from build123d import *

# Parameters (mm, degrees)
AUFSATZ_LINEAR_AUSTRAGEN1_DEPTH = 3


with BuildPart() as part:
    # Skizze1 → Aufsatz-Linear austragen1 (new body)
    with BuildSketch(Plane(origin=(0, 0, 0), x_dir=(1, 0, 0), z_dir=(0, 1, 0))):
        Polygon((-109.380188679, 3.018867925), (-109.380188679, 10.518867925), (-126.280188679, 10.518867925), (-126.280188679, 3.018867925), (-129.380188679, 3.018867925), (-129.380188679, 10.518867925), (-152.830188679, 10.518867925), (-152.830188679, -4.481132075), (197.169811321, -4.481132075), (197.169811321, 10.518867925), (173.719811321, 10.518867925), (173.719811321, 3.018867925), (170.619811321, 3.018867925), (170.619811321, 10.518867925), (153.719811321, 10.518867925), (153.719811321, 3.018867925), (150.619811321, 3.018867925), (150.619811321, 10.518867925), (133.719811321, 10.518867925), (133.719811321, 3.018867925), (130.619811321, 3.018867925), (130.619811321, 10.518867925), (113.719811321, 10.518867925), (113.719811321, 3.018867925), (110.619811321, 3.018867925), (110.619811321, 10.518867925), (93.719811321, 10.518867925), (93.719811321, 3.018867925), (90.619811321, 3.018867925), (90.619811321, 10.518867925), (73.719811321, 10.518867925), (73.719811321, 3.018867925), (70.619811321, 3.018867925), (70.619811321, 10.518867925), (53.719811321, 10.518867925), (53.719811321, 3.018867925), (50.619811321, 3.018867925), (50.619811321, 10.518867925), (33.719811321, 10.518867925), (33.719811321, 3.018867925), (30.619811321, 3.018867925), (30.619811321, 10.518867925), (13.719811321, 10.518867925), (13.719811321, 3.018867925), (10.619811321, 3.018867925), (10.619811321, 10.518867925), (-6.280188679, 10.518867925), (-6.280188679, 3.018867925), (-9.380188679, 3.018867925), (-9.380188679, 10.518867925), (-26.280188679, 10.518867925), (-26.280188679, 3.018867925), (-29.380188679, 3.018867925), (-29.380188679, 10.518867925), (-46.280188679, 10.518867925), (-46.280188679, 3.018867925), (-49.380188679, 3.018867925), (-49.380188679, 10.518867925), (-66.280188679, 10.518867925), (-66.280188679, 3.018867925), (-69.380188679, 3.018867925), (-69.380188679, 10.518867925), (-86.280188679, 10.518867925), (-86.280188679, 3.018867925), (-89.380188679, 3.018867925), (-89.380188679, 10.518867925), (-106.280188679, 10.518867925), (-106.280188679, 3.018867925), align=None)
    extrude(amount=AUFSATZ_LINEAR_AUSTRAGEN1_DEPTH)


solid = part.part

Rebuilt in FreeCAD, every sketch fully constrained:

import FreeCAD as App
import Part
import Sketcher

doc = App.newDocument("Part")
body = doc.addObject("PartDesign::Body", "Body")

sketch1 = doc.addObject("Sketcher::SketchObject", "Sketch")
body.addObject(sketch1)
sketch1.AttachmentSupport = (doc.XZ_Plane, [""])
sketch1.MapMode = "FlatFace"
sketch1.addGeometry([
    Part.LineSegment(App.Vector(-109.380189, -3.018868, 0), App.Vector(-109.380189, -10.518868, 0)),
    Part.LineSegment(App.Vector(-109.380189, -10.518868, 0), App.Vector(-126.280189, -10.518868, 0)),
    Part.LineSegment(App.Vector(-126.280189, -10.518868, 0), App.Vector(-126.280189, -3.018868, 0)),
    Part.LineSegment(App.Vector(-126.280189, -3.018868, 0), App.Vector(-129.380189, -3.018868, 0)),
    Part.LineSegment(App.Vector(-129.380189, -3.018868, 0), App.Vector(-129.380189, -10.518868, 0)),
    Part.LineSegment(App.Vector(-129.380189, -10.518868, 0), App.Vector(-152.830189, -10.518868, 0)),
    Part.LineSegment(App.Vector(-152.830189, -10.518868, 0), App.Vector(-152.830189, 4.481132, 0)),
    Part.LineSegment(App.Vector(-152.830189, 4.481132, 0), App.Vector(197.169811, 4.481132, 0)),
    Part.LineSegment(App.Vector(197.169811, 4.481132, 0), App.Vector(197.169811, -10.518868, 0)),
    Part.LineSegment(App.Vector(197.169811, -10.518868, 0), App.Vector(173.719811, -10.518868, 0)),
    Part.LineSegment(App.Vector(173.719811, -10.518868, 0), App.Vector(173.719811, -3.018868, 0)),
    Part.LineSegment(App.Vector(173.719811, -3.018868, 0), App.Vector(170.619811, -3.018868, 0)),
    Part.LineSegment(App.Vector(170.619811, -3.018868, 0), App.Vector(170.619811, -10.518868, 0)),
    Part.LineSegment(App.Vector(170.619811, -10.518868, 0), App.Vector(153.719811, -10.518868, 0)),
    Part.LineSegment(App.Vector(153.719811, -10.518868, 0), App.Vector(153.719811, -3.018868, 0)),
    Part.LineSegment(App.Vector(153.719811, -3.018868, 0), App.Vector(150.619811, -3.018868, 0)),
    Part.LineSegment(App.Vector(150.619811, -3.018868, 0), App.Vector(150.619811, -10.518868, 0)),
    Part.LineSegment(App.Vector(150.619811, -10.518868, 0), App.Vector(133.719811, -10.518868, 0)),
    Part.LineSegment(App.Vector(133.719811, -10.518868, 0), App.Vector(133.719811, -3.018868, 0)),
    Part.LineSegment(App.Vector(133.719811, -3.018868, 0), App.Vector(130.619811, -3.018868, 0)),
    Part.LineSegment(App.Vector(130.619811, -3.018868, 0), App.Vector(130.619811, -10.518868, 0)),
    Part.LineSegment(App.Vector(130.619811, -10.518868, 0), App.Vector(113.719811, -10.518868, 0)),
    Part.LineSegment(App.Vector(113.719811, -10.518868, 0), App.Vector(113.719811, -3.018868, 0)),
    Part.LineSegment(App.Vector(113.719811, -3.018868, 0), App.Vector(110.619811, -3.018868, 0)),
    Part.LineSegment(App.Vector(110.619811, -3.018868, 0), App.Vector(110.619811, -10.518868, 0)),
    Part.LineSegment(App.Vector(110.619811, -10.518868, 0), App.Vector(93.719811, -10.518868, 0)),
    Part.LineSegment(App.Vector(93.719811, -10.518868, 0), App.Vector(93.719811, -3.018868, 0)),
    Part.LineSegment(App.Vector(93.719811, -3.018868, 0), App.Vector(90.619811, -3.018868, 0)),
    Part.LineSegment(App.Vector(90.619811, -3.018868, 0), App.Vector(90.619811, -10.518868, 0)),
    Part.LineSegment(App.Vector(90.619811, -10.518868, 0), App.Vector(73.719811, -10.518868, 0)),
    Part.LineSegment(App.Vector(73.719811, -10.518868, 0), App.Vector(73.719811, -3.018868, 0)),
    Part.LineSegment(App.Vector(73.719811, -3.018868, 0), App.Vector(70.619811, -3.018868, 0)),
    Part.LineSegment(App.Vector(70.619811, -3.018868, 0), App.Vector(70.619811, -10.518868, 0)),
    Part.LineSegment(App.Vector(70.619811, -10.518868, 0), App.Vector(53.719811, -10.518868, 0)),
    Part.LineSegment(App.Vector(53.719811, -10.518868, 0), App.Vector(53.719811, -3.018868, 0)),
    Part.LineSegment(App.Vector(53.719811, -3.018868, 0), App.Vector(50.619811, -3.018868, 0)),
    Part.LineSegment(App.Vector(50.619811, -3.018868, 0), App.Vector(50.619811, -10.518868, 0)),
    Part.LineSegment(App.Vector(50.619811, -10.518868, 0), App.Vector(33.719811, -10.518868, 0)),
    Part.LineSegment(App.Vector(33.719811, -10.518868, 0), App.Vector(33.719811, -3.018868, 0)),
    Part.LineSegment(App.Vector(33.719811, -3.018868, 0), App.Vector(30.619811, -3.018868, 0)),
    Part.LineSegment(App.Vector(30.619811, -3.018868, 0), App.Vector(30.619811, -10.518868, 0)),
    Part.LineSegment(App.Vector(30.619811, -10.518868, 0), App.Vector(13.719811, -10.518868, 0)),
    Part.LineSegment(App.Vector(13.719811, -10.518868, 0), App.Vector(13.719811, -3.018868, 0)),
    Part.LineSegment(App.Vector(13.719811, -3.018868, 0), App.Vector(10.619811, -3.018868, 0)),
    Part.LineSegment(App.Vector(10.619811, -3.018868, 0), App.Vector(10.619811, -10.518868, 0)),
    Part.LineSegment(App.Vector(10.619811, -10.518868, 0), App.Vector(-6.280189, -10.518868, 0)),
    Part.LineSegment(App.Vector(-6.280189, -10.518868, 0), App.Vector(-6.280189, -3.018868, 0)),
    Part.LineSegment(App.Vector(-6.280189, -3.018868, 0), App.Vector(-9.380189, -3.018868, 0)),
    Part.LineSegment(App.Vector(-9.380189, -3.018868, 0), App.Vector(-9.380189, -10.518868, 0)),
    Part.LineSegment(App.Vector(-9.380189, -10.518868, 0), App.Vector(-26.280189, -10.518868, 0)),
    Part.LineSegment(App.Vector(-26.280189, -10.518868, 0), App.Vector(-26.280189, -3.018868, 0)),
    Part.LineSegment(App.Vector(-26.280189, -3.018868, 0), App.Vector(-29.380189, -3.018868, 0)),
    Part.LineSegment(App.Vector(-29.380189, -3.018868, 0), App.Vector(-29.380189, -10.518868, 0)),
    Part.LineSegment(App.Vector(-29.380189, -10.518868, 0), App.Vector(-46.280189, -10.518868, 0)),
    Part.LineSegment(App.Vector(-46.280189, -10.518868, 0), App.Vector(-46.280189, -3.018868, 0)),
    Part.LineSegment(App.Vector(-46.280189, -3.018868, 0), App.Vector(-49.380189, -3.018868, 0)),
    Part.LineSegment(App.Vector(-49.380189, -3.018868, 0), App.Vector(-49.380189, -10.518868, 0)),
    Part.LineSegment(App.Vector(-49.380189, -10.518868, 0), App.Vector(-66.280189, -10.518868, 0)),
    Part.LineSegment(App.Vector(-66.280189, -10.518868, 0), App.Vector(-66.280189, -3.018868, 0)),
    Part.LineSegment(App.Vector(-66.280189, -3.018868, 0), App.Vector(-69.380189, -3.018868, 0)),
    Part.LineSegment(App.Vector(-69.380189, -3.018868, 0), App.Vector(-69.380189, -10.518868, 0)),
    Part.LineSegment(App.Vector(-69.380189, -10.518868, 0), App.Vector(-86.280189, -10.518868, 0)),
    Part.LineSegment(App.Vector(-86.280189, -10.518868, 0), App.Vector(-86.280189, -3.018868, 0)),
    Part.LineSegment(App.Vector(-86.280189, -3.018868, 0), App.Vector(-89.380189, -3.018868, 0)),
    Part.LineSegment(App.Vector(-89.380189, -3.018868, 0), App.Vector(-89.380189, -10.518868, 0)),
    Part.LineSegment(App.Vector(-89.380189, -10.518868, 0), App.Vector(-106.280189, -10.518868, 0)),
    Part.LineSegment(App.Vector(-106.280189, -10.518868, 0), App.Vector(-106.280189, -3.018868, 0)),
    Part.LineSegment(App.Vector(-106.280189, -3.018868, 0), App.Vector(-109.380189, -3.018868, 0)),
], False)
sketch1.addConstraint([
    Sketcher.Constraint("Coincident", 0, 2, 1, 1),
    Sketcher.Constraint("Coincident", 1, 2, 2, 1),
    Sketcher.Constraint("Coincident", 2, 2, 3, 1),
    Sketcher.Constraint("Coincident", 3, 2, 4, 1),
    Sketcher.Constraint("Coincident", 4, 2, 5, 1),
    Sketcher.Constraint("Coincident", 5, 2, 6, 1),
    Sketcher.Constraint("Coincident", 6, 2, 7, 1),
    Sketcher.Constraint("Coincident", 7, 2, 8, 1),
    Sketcher.Constraint("Coincident", 8, 2, 9, 1),
    Sketcher.Constraint("Coincident", 9, 2, 10, 1),
    Sketcher.Constraint("Coincident", 10, 2, 11, 1),
    Sketcher.Constraint("Coincident", 11, 2, 12, 1),
    Sketcher.Constraint("Coincident", 12, 2, 13, 1),
    Sketcher.Constraint("Coincident", 13, 2, 14, 1),
    Sketcher.Constraint("Coincident", 14, 2, 15, 1),
    Sketcher.Constraint("Coincident", 15, 2, 16, 1),
    Sketcher.Constraint("Coincident", 16, 2, 17, 1),
    Sketcher.Constraint("Coincident", 17, 2, 18, 1),
    Sketcher.Constraint("Coincident", 18, 2, 19, 1),
    Sketcher.Constraint("Coincident", 19, 2, 20, 1),
    Sketcher.Constraint("Coincident", 20, 2, 21, 1),
    Sketcher.Constraint("Coincident", 21, 2, 22, 1),
    Sketcher.Constraint("Coincident", 22, 2, 23, 1),
    Sketcher.Constraint("Coincident", 23, 2, 24, 1),
    Sketcher.Constraint("Coincident", 24, 2, 25, 1),
    Sketcher.Constraint("Coincident", 25, 2, 26, 1),
    Sketcher.Constraint("Coincident", 26, 2, 27, 1),
    Sketcher.Constraint("Coincident", 27, 2, 28, 1),
    Sketcher.Constraint("Coincident", 28, 2, 29, 1),
    Sketcher.Constraint("Coincident", 29, 2, 30, 1),
    Sketcher.Constraint("Coincident", 30, 2, 31, 1),
    Sketcher.Constraint("Coincident", 31, 2, 32, 1),
    Sketcher.Constraint("Coincident", 32, 2, 33, 1),
    Sketcher.Constraint("Coincident", 33, 2, 34, 1),
    Sketcher.Constraint("Coincident", 34, 2, 35, 1),
    Sketcher.Constraint("Coincident", 35, 2, 36, 1),
    Sketcher.Constraint("Coincident", 36, 2, 37, 1),
    Sketcher.Constraint("Coincident", 37, 2, 38, 1),
    Sketcher.Constraint("Coincident", 38, 2, 39, 1),
    Sketcher.Constraint("Coincident", 39, 2, 40, 1),
    Sketcher.Constraint("Coincident", 40, 2, 41, 1),
    Sketcher.Constraint("Coincident", 41, 2, 42, 1),
    Sketcher.Constraint("Coincident", 42, 2, 43, 1),
    Sketcher.Constraint("Coincident", 43, 2, 44, 1),
    Sketcher.Constraint("Coincident", 44, 2, 45, 1),
    Sketcher.Constraint("Coincident", 45, 2, 46, 1),
    Sketcher.Constraint("Coincident", 46, 2, 47, 1),
    Sketcher.Constraint("Coincident", 47, 2, 48, 1),
    Sketcher.Constraint("Coincident", 48, 2, 49, 1),
    Sketcher.Constraint("Coincident", 49, 2, 50, 1),
    Sketcher.Constraint("Coincident", 50, 2, 51, 1),
    Sketcher.Constraint("Coincident", 51, 2, 52, 1),
    Sketcher.Constraint("Coincident", 52, 2, 53, 1),
    Sketcher.Constraint("Coincident", 53, 2, 54, 1),
    Sketcher.Constraint("Coincident", 54, 2, 55, 1),
    Sketcher.Constraint("Coincident", 55, 2, 56, 1),
    Sketcher.Constraint("Coincident", 56, 2, 57, 1),
    Sketcher.Constraint("Coincident", 57, 2, 58, 1),
    Sketcher.Constraint("Coincident", 58, 2, 59, 1),
    Sketcher.Constraint("Coincident", 59, 2, 60, 1),
    Sketcher.Constraint("Coincident", 60, 2, 61, 1),
    Sketcher.Constraint("Coincident", 61, 2, 62, 1),
    Sketcher.Constraint("Coincident", 62, 2, 63, 1),
    Sketcher.Constraint("Coincident", 63, 2, 64, 1),
    Sketcher.Constraint("Coincident", 64, 2, 65, 1),
    Sketcher.Constraint("Coincident", 65, 2, 66, 1),
    Sketcher.Constraint("Coincident", 66, 2, 67, 1),
    Sketcher.Constraint("Coincident", 67, 2, 0, 1),
    Sketcher.Constraint("Vertical", 0),
    Sketcher.Constraint("Horizontal", 1),
    Sketcher.Constraint("Vertical", 2),
    Sketcher.Constraint("Horizontal", 3),
    Sketcher.Constraint("Vertical", 4),
    Sketcher.Constraint("Horizontal", 5),
    Sketcher.Constraint("Vertical", 6),
    Sketcher.Constraint("Horizontal", 7),
    Sketcher.Constraint("Vertical", 8),
    Sketcher.Constraint("Horizontal", 9),
    Sketcher.Constraint("Vertical", 10),
    Sketcher.Constraint("Horizontal", 11),
    Sketcher.Constraint("Vertical", 12),
    Sketcher.Constraint("Horizontal", 13),
    Sketcher.Constraint("Vertical", 14),
    Sketcher.Constraint("Horizontal", 15),
    Sketcher.Constraint("Vertical", 16),
    Sketcher.Constraint("Horizontal", 17),
    Sketcher.Constraint("Vertical", 18),
    Sketcher.Constraint("Horizontal", 19),
    Sketcher.Constraint("Vertical", 20),
    Sketcher.Constraint("Horizontal", 21),
    Sketcher.Constraint("Vertical", 22),
    Sketcher.Constraint("Horizontal", 23),
    Sketcher.Constraint("Vertical", 24),
    Sketcher.Constraint("Horizontal", 25),
    Sketcher.Constraint("Vertical", 26),
    Sketcher.Constraint("Horizontal", 27),
    Sketcher.Constraint("Vertical", 28),
    Sketcher.Constraint("Horizontal", 29),
    Sketcher.Constraint("Vertical", 30),
    Sketcher.Constraint("Horizontal", 31),
    Sketcher.Constraint("Vertical", 32),
    Sketcher.Constraint("Horizontal", 33),
    Sketcher.Constraint("Vertical", 34),
    Sketcher.Constraint("Horizontal", 35),
    Sketcher.Constraint("Vertical", 36),
    Sketcher.Constraint("Horizontal", 37),
    Sketcher.Constraint("Vertical", 38),
    Sketcher.Constraint("Horizontal", 39),
    Sketcher.Constraint("Vertical", 40),
    Sketcher.Constraint("Horizontal", 41),
    Sketcher.Constraint("Vertical", 42),
    Sketcher.Constraint("Horizontal", 43),
    Sketcher.Constraint("Vertical", 44),
    Sketcher.Constraint("Horizontal", 45),
    Sketcher.Constraint("Vertical", 46),
    Sketcher.Constraint("Horizontal", 47),
    Sketcher.Constraint("Vertical", 48),
    Sketcher.Constraint("Horizontal", 49),
    Sketcher.Constraint("Vertical", 50),
    Sketcher.Constraint("Horizontal", 51),
    Sketcher.Constraint("Vertical", 52),
    Sketcher.Constraint("Horizontal", 53),
    Sketcher.Constraint("Vertical", 54),
    Sketcher.Constraint("Horizontal", 55),
    Sketcher.Constraint("Vertical", 56),
    Sketcher.Constraint("Horizontal", 57),
    Sketcher.Constraint("Vertical", 58),
    Sketcher.Constraint("Horizontal", 59),
    Sketcher.Constraint("Vertical", 60),
    Sketcher.Constraint("Horizontal", 61),
    Sketcher.Constraint("Vertical", 62),
    Sketcher.Constraint("Horizontal", 63),
    Sketcher.Constraint("Vertical", 64),
    Sketcher.Constraint("Horizontal", 65),
    Sketcher.Constraint("Vertical", 66),
    Sketcher.Constraint("Horizontal", 67),
    Sketcher.Constraint("Horizontal", 1, 2, 4, 2),
    Sketcher.Constraint("Horizontal", 5, 2, 8, 2),
    Sketcher.Constraint("Horizontal", 3, 2, 10, 2),
    Sketcher.Constraint("Horizontal", 9, 2, 12, 2),
    Sketcher.Constraint("Horizontal", 11, 2, 14, 2),
    Sketcher.Constraint("Horizontal", 13, 2, 16, 2),
    Sketcher.Constraint("Horizontal", 15, 2, 18, 2),
    Sketcher.Constraint("Horizontal", 17, 2, 20, 2),
    Sketcher.Constraint("Horizontal", 19, 2, 22, 2),
    Sketcher.Constraint("Horizontal", 21, 2, 24, 2),
    Sketcher.Constraint("Horizontal", 23, 2, 26, 2),
    Sketcher.Constraint("Horizontal", 25, 2, 28, 2),
    Sketcher.Constraint("Horizontal", 27, 2, 30, 2),
    Sketcher.Constraint("Horizontal", 29, 2, 32, 2),
    Sketcher.Constraint("Horizontal", 31, 2, 34, 2),
    Sketcher.Constraint("Horizontal", 33, 2, 36, 2),
    Sketcher.Constraint("Horizontal", 35, 2, 38, 2),
    Sketcher.Constraint("Horizontal", 37, 2, 40, 2),
    Sketcher.Constraint("Horizontal", 39, 2, 42, 2),
    Sketcher.Constraint("Horizontal", 41, 2, 44, 2),
    Sketcher.Constraint("Horizontal", 43, 2, 46, 2),
    Sketcher.Constraint("Horizontal", 45, 2, 48, 2),
    Sketcher.Constraint("Horizontal", 47, 2, 50, 2),
    Sketcher.Constraint("Horizontal", 49, 2, 52, 2),
    Sketcher.Constraint("Horizontal", 51, 2, 54, 2),
    Sketcher.Constraint("Horizontal", 53, 2, 56, 2),
    Sketcher.Constraint("Horizontal", 55, 2, 58, 2),
    Sketcher.Constraint("Horizontal", 57, 2, 60, 2),
    Sketcher.Constraint("Horizontal", 59, 2, 62, 2),
    Sketcher.Constraint("Horizontal", 61, 2, 64, 2),
    Sketcher.Constraint("Horizontal", 63, 2, 66, 2),
    Sketcher.Constraint("Equal", 5, 9),
    Sketcher.Constraint("Equal", 3, 11),
    Sketcher.Constraint("Equal", 1, 13),
    Sketcher.Constraint("Equal", 11, 15),
    Sketcher.Constraint("Equal", 13, 17),
    Sketcher.Constraint("Equal", 15, 19),
    Sketcher.Constraint("Equal", 17, 21),
    Sketcher.Constraint("Equal", 19, 23),
    Sketcher.Constraint("Equal", 21, 25),
    Sketcher.Constraint("Equal", 23, 27),
    Sketcher.Constraint("Equal", 25, 29),
    Sketcher.Constraint("Equal", 27, 31),
    Sketcher.Constraint("Equal", 29, 33),
    Sketcher.Constraint("Equal", 31, 35),
    Sketcher.Constraint("Equal", 33, 37),
    Sketcher.Constraint("Equal", 35, 39),
    Sketcher.Constraint("Equal", 37, 41),
    Sketcher.Constraint("Equal", 39, 43),
    Sketcher.Constraint("Equal", 41, 45),
    Sketcher.Constraint("Equal", 43, 47),
    Sketcher.Constraint("Equal", 45, 49),
    Sketcher.Constraint("Equal", 47, 51),
    Sketcher.Constraint("Equal", 49, 53),
    Sketcher.Constraint("Equal", 51, 55),
    Sketcher.Constraint("Equal", 53, 57),
    Sketcher.Constraint("Equal", 55, 59),
    Sketcher.Constraint("Equal", 57, 61),
    Sketcher.Constraint("Equal", 59, 63),
    Sketcher.Constraint("Equal", 61, 65),
    Sketcher.Constraint("Equal", 63, 67),
    Sketcher.Constraint("DistanceX", 7, 1, 7, 2, 350.0),
    Sketcher.Constraint("DistanceY", 6, 1, 6, 2, 15.0),
    Sketcher.Constraint("DistanceX", 1, 2, 1, 1, 16.9),
    Sketcher.Constraint("DistanceX", 3, 2, 3, 1, 3.1),
    Sketcher.Constraint("DistanceY", 0, 2, 0, 1, 7.5),
    Sketcher.Constraint("DistanceX", 0, 2, -1, 1, 109.380189),
    Sketcher.Constraint("DistanceY", 0, 2, -1, 1, 10.518868),
])
pad1 = doc.addObject("PartDesign::Pad", "Pad")
body.addObject(pad1)
pad1.Profile = sketch1
pad1.Length = 3
pad1.Reversed = True

doc.recompute()
